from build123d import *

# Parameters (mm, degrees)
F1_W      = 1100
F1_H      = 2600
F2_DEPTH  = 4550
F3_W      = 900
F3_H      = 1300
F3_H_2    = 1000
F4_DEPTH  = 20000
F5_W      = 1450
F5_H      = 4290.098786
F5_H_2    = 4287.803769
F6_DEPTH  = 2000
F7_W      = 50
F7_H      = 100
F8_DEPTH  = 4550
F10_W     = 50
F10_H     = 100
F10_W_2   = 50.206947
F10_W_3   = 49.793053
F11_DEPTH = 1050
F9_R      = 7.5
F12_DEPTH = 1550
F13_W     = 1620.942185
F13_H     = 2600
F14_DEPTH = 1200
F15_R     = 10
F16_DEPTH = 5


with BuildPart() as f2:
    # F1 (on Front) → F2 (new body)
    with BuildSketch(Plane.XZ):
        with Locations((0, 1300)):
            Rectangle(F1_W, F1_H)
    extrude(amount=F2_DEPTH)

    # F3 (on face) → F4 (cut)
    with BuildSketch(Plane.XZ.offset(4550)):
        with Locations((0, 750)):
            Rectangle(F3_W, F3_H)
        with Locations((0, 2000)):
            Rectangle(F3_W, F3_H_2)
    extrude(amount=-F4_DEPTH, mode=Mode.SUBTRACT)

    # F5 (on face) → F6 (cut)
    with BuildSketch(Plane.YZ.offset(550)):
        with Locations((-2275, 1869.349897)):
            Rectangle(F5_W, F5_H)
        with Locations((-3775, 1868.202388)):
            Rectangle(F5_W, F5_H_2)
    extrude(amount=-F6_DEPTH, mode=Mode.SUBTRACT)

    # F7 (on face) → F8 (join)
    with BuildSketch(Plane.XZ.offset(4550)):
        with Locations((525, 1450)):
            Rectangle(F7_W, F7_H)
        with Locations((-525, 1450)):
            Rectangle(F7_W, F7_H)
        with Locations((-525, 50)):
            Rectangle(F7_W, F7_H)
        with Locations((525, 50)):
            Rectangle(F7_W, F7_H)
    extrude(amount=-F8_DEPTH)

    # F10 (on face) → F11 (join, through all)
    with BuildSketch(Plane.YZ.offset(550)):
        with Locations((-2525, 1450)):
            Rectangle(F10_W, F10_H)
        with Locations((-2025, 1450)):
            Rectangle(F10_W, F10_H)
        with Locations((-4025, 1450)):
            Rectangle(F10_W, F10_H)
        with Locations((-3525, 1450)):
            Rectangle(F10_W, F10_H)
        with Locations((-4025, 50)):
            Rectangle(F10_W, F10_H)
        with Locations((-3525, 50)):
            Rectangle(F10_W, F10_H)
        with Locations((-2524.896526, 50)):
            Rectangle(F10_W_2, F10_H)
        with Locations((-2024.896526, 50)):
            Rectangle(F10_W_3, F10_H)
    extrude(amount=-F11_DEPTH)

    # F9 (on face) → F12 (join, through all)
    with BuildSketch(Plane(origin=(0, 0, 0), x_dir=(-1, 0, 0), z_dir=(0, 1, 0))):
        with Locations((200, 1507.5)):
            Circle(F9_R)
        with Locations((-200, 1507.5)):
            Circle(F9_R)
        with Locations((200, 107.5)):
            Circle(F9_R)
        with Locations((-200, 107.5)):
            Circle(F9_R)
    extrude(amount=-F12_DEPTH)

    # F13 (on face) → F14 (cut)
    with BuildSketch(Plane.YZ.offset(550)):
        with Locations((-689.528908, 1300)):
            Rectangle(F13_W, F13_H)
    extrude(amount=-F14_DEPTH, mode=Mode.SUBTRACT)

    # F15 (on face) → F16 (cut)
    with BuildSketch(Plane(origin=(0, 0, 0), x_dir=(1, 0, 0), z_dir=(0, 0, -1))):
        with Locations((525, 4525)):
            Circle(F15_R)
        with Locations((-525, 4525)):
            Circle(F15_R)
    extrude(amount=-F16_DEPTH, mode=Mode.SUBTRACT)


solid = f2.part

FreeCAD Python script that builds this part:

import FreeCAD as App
import Part
import Sketcher

V = App.Vector


def add_polygon(sketch, points):
    """Adds a closed chain of lines whose ends are joined by coincident constraints."""
    first, n = sketch.GeometryCount, len(points)
    for a, b in zip(points, points[1:] + points[:1]):
        sketch.addGeometry(Part.LineSegment(App.Vector(*a, 0), App.Vector(*b, 0)), False)
    for i in range(n):
        sketch.addConstraint(Sketcher.Constraint("Coincident", first + i, 2, first + (i + 1) % n, 1))

doc = App.newDocument("Part")
params = doc.addObject("Spreadsheet::Sheet", "Params")
for row, (alias, value) in enumerate([
    ("sketch1_width", "1100 mm"),
    ("sketch1_height", "2600 mm"),
    ("pad1_length", "4550 mm"),
    ("sketch2_width", "900 mm"),
    ("sketch2_height", "1300 mm"),
    ("sketch2_height2", "1000 mm"),
    ("pocket1_length", "20000 mm"),
    ("sketch3_width", "1450 mm"),
    ("pocket2_length", "2000 mm"),
    ("sketch4_width", "50 mm"),
    ("sketch4_height", "100 mm"),
    ("pad2_length", "4550 mm"),
    ("sketch5_width", "50 mm"),
    ("sketch5_height", "100 mm"),
    ("sketch6_diameter", "15 mm"),
    ("pad4_length", "1550 mm"),
    ("sketch7_height", "2600 mm"),
    ("pocket3_length", "1200 mm"),
    ("sketch8_diameter", "20 mm"),
    ("pocket4_length", "5 mm"),
], start=1):
    params.set(f"A{row}", alias)
    params.set(f"B{row}", "=" + value)
    params.setAlias(f"B{row}", alias)

body = doc.addObject("PartDesign::Body", "Body")
body.AllowCompound = True

# Sketch on XZ plane
sketch1 = body.newObject("Sketcher::SketchObject", "Sketch")
sketch1.AttachmentSupport = (doc.getObject("XZ_Plane"), [""])
sketch1.MapMode = "FlatFace"
add_polygon(sketch1, [(-550, 2600), (-550, 0), (550, 0), (550, 2600)])  # lines 0-3
sketch1.addConstraint([
    Sketcher.Constraint("Vertical", 0),
    Sketcher.Constraint("Horizontal", 1),
    Sketcher.Constraint("Vertical", 2),
    Sketcher.Constraint("Horizontal", 3),
    Sketcher.Constraint("Symmetric", 0, 2, 1, 2, -1, 1),
    Sketcher.Constraint("DistanceX", 1, 1, 1, 2, 1100.0),
    Sketcher.Constraint("DistanceY", 0, 2, 0, 1, 2600.0),
])
sketch1.setExpression("Constraints[9]", "Params.sketch1_width")
sketch1.setExpression("Constraints[10]", "Params.sketch1_height")
pad1 = body.newObject("PartDesign::Pad", "Pad")
pad1.Profile = sketch1
pad1.setExpression("Length", "Params.pad1_length")

# Sketch on XZ plane
sketch2 = body.newObject("Sketcher::SketchObject", "Sketch001")
sketch2.AttachmentSupport = (doc.getObject("XZ_Plane"), [""])
sketch2.MapMode = "FlatFace"
sketch2.AttachmentOffset = App.Placement(V(0, 0, 4550), App.Rotation())
add_polygon(sketch2, [(-450, 1400), (-450, 100), (450, 100), (450, 1400)])  # lines 0-3
add_polygon(sketch2, [(-450, 2500), (-450, 1500), (450, 1500), (450, 2500)])  # lines 4-7
sketch2.addConstraint([
    Sketcher.Constraint("Vertical", 0),
    Sketcher.Constraint("Horizontal", 1),
    Sketcher.Constraint("Vertical", 2),
    Sketcher.Constraint("Horizontal", 3),
    Sketcher.Constraint("Vertical", 4),
    Sketcher.Constraint("Horizontal", 5),
    Sketcher.Constraint("Vertical", 6),
    Sketcher.Constraint("Horizontal", 7),
    Sketcher.Constraint("Vertical", 3, 2, 4, 2),
    Sketcher.Constraint("Vertical", 2, 2, 5, 2),
    Sketcher.Constraint("DistanceX", 1, 1, 1, 2, 900.0),
    Sketcher.Constraint("DistanceY", 0, 2, 0, 1, 1300.0),
    Sketcher.Constraint("DistanceY", 4, 2, 4, 1, 1000.0),
    Sketcher.Constraint("DistanceX", 0, 2, -1, 1, 450.0),
    Sketcher.Constraint("DistanceY", -1, 1, 0, 2, 100.0),
    Sketcher.Constraint("DistanceY", -1, 1, 4, 2, 1500.0),
])
sketch2.setExpression("Constraints[18]", "Params.sketch2_width")
sketch2.setExpression("Constraints[19]", "Params.sketch2_height")
sketch2.setExpression("Constraints[20]", "Params.sketch2_height2")
pocket1 = body.newObject("PartDesign::Pocket", "Pocket")
pocket1.Profile = sketch2
pocket1.setExpression("Length", "Params.pocket1_length")

# Sketch on YZ plane
sketch3 = body.newObject("Sketcher::SketchObject", "Sketch002")
sketch3.AttachmentSupport = (doc.getObject("YZ_Plane"), [""])
sketch3.MapMode = "FlatFace"
sketch3.AttachmentOffset = App.Placement(V(0, 0, 550), App.Rotation())
add_polygon(sketch3, [(-3000, 4014.39929), (-3000, -275.699496), (-1550, -275.699496), (-1550, 4014.39929)])  # lines 0-3
add_polygon(sketch3, [(-4500, 4012.104273), (-4500, -275.699497), (-3050, -275.699497), (-3050, 4012.104273)])  # lines 4-7
sketch3.addConstraint([
    Sketcher.Constraint("Vertical", 0),
    Sketcher.Constraint("Horizontal", 1),
    Sketcher.Constraint("Vertical", 2),
    Sketcher.Constraint("Horizontal", 3),
    Sketcher.Constraint("Vertical", 4),
    Sketcher.Constraint("Horizontal", 5),
    Sketcher.Constraint("Vertical", 6),
    Sketcher.Constraint("Horizontal", 7),
    Sketcher.Constraint("Horizontal", 1, 2, 4, 2),
    Sketcher.Constraint("Equal", 3, 5),
    Sketcher.Constraint("DistanceX", 1, 1, 1, 2, 1450.0),
    Sketcher.Constraint("DistanceX", 0, 2, -1, 1, 3000.0),
    Sketcher.Constraint("DistanceX", 4, 2, -1, 1, 4500.0),
    Sketcher.Constraint("DistanceY", 4, 2, 4, 1, 4287.803769),
    Sketcher.Constraint("DistanceY", 0, 2, 0, 1, 4290.098786),
    Sketcher.Constraint("DistanceY", -1, 1, 2, 2, 4014.39929),
])
sketch3.setExpression("Constraints[18]", "Params.sketch3_width")
pocket2 = body.newObject("PartDesign::Pocket", "Pocket001")
pocket2.Profile = sketch3
pocket2.setExpression("Length", "Params.pocket2_length")

# Sketch on XZ plane
sketch4 = body.newObject("Sketcher::SketchObject", "Sketch003")
sketch4.AttachmentSupport = (doc.getObject("XZ_Plane"), [""])
sketch4.MapMode = "FlatFace"
sketch4.AttachmentOffset = App.Placement(V(0, 0, 4550), App.Rotation())
add_polygon(sketch4, [(500, 1500), (500, 1400), (550, 1400), (550, 1500)])  # lines 0-3
add_polygon(sketch4, [(-550, 1500), (-550, 1400), (-500, 1400), (-500, 1500)])  # lines 4-7
add_polygon(sketch4, [(-550, 100), (-550, 0), (-500, 0), (-500, 100)])  # lines 8-11
add_polygon(sketch4, [(500, 100), (500, 0), (550, 0), (550, 100)])  # lines 12-15
sketch4.addConstraint([
    Sketcher.Constraint("Vertical", 0),
    Sketcher.Constraint("Horizontal", 1),
    Sketcher.Constraint("Vertical", 2),
    Sketcher.Constraint("Horizontal", 3),
    Sketcher.Constraint("Vertical", 4),
    Sketcher.Constraint("Horizontal", 5),
    Sketcher.Constraint("Vertical", 6),
    Sketcher.Constraint("Horizontal", 7),
    Sketcher.Constraint("Vertical", 8),
    Sketcher.Constraint("Horizontal", 9),
    Sketcher.Constraint("Vertical", 10),
    Sketcher.Constraint("Horizontal", 11),
    Sketcher.Constraint("Vertical", 12),
    Sketcher.Constraint("Horizontal", 13),
    Sketcher.Constraint("Vertical", 14),
    Sketcher.Constraint("Horizontal", 15),
    Sketcher.Constraint("Symmetric", 9, 2, 12, 2, -1, 1),
    Sketcher.Constraint("Symmetric", 1, 2, 4, 2, -2),
    Sketcher.Constraint("Symmetric", 3, 2, 6, 2, -2),
    Sketcher.Constraint("Symmetric", 8, 2, 13, 2, -2),
    Sketcher.Constraint("Horizontal", 11, 2, 14, 2),
    Sketcher.Constraint("Vertical", 7, 2, 8, 2),
    Sketcher.Constraint("Vertical", 6, 2, 9, 2),
    Sketcher.Constraint("Equal", 6, 8),
    Sketcher.Constraint("DistanceX", 1, 1, 1, 2, 50.0),
    Sketcher.Constraint("DistanceY", 0, 2, 0, 1, 100.0),
    Sketcher.Constraint("DistanceX", -1, 1, 0, 2, 500.0),
    Sketcher.Constraint("DistanceY", -1, 1, 0, 2, 1400.0),
])
sketch4.setExpression("Constraints[40]", "Params.sketch4_width")
sketch4.setExpression("Constraints[41]", "Params.sketch4_height")
pad2 = body.newObject("PartDesign::Pad", "Pad001")
pad2.Profile = sketch4
pad2.setExpression("Length", "Params.pad2_length")
pad2.Reversed = True

# Sketch on YZ plane
sketch5 = body.newObject("Sketcher::SketchObject", "Sketch004")
sketch5.AttachmentSupport = (doc.getObject("YZ_Plane"), [""])
sketch5.MapMode = "FlatFace"
sketch5.AttachmentOffset = App.Placement(V(0, 0, 550), App.Rotation())
add_polygon(sketch5, [(-2550, 1500), (-2550, 1400), (-2500, 1400), (-2500, 1500)])  # lines 0-3
add_polygon(sketch5, [(-2050, 1500), (-2050, 1400), (-2000, 1400), (-2000, 1500)])  # lines 4-7
add_polygon(sketch5, [(-4050, 1500), (-4050, 1400), (-4000, 1400), (-4000, 1500)])  # lines 8-11
add_polygon(sketch5, [(-3550, 1500), (-3550, 1400), (-3500, 1400), (-3500, 1500)])  # lines 12-15
add_polygon(sketch5, [(-4050, 100), (-4050, 0), (-4000, 0), (-4000, 100)])  # lines 16-19
add_polygon(sketch5, [(-3550, 100), (-3550, 0), (-3500, 0), (-3500, 100)])  # lines 20-23
add_polygon(sketch5, [(-2549.999999, 100), (-2549.999999, 0), (-2499.793053, 0), (-2499.793053, 100)])  # lines 24-27
add_polygon(sketch5, [(-2049.793053, 100), (-2049.793053, 0), (-2000, 0), (-2000, 100)])  # lines 28-31
sketch5.addConstraint([
    Sketcher.Constraint("Vertical", 0),
    Sketcher.Constraint("Horizontal", 1),
    Sketcher.Constraint("Vertical", 2),
    Sketcher.Constraint("Horizontal", 3),
    Sketcher.Constraint("Vertical", 4),
    Sketcher.Constraint("Horizontal", 5),
    Sketcher.Constraint("Vertical", 6),
    Sketcher.Constraint("Horizontal", 7),
    Sketcher.Constraint("Vertical", 8),
    Sketcher.Constraint("Horizontal", 9),
    Sketcher.Constraint("Vertical", 10),
    Sketcher.Constraint("Horizontal", 11),
    Sketcher.Constraint("Vertical", 12),
    Sketcher.Constraint("Horizontal", 13),
    Sketcher.Constraint("Vertical", 14),
    Sketcher.Constraint("Horizontal", 15),
    Sketcher.Constraint("Vertical", 16),
    Sketcher.Constraint("Horizontal", 17),
    Sketcher.Constraint("Vertical", 18),
    Sketcher.Constraint("Horizontal", 19),
    Sketcher.Constraint("Vertical", 20),
    Sketcher.Constraint("Horizontal", 21),
    Sketcher.Constraint("Vertical", 22),
    Sketcher.Constraint("Horizontal", 23),
    Sketcher.Constraint("Vertical", 24),
    Sketcher.Constraint("Horizontal", 25),
    Sketcher.Constraint("Vertical", 26),
    Sketcher.Constraint("Horizontal", 27),
    Sketcher.Constraint("Vertical", 28),
    Sketcher.Constraint("Horizontal", 29),
    Sketcher.Constraint("Vertical", 30),
    Sketcher.Constraint("Horizontal", 31),
    Sketcher.Constraint("PointOnObject", 16, 2, -1),
    Sketcher.Constraint("PointOnObject", 20, 2, -1),
    Sketcher.Constraint("PointOnObject", 24, 2, -1),
    Sketcher.Constraint("PointOnObject", 28, 2, -1),
    Sketcher.Constraint("Horizontal", 1, 2, 4, 2),
    Sketcher.Constraint("Horizontal", 3, 2, 6, 2),
    Sketcher.Constraint("Horizontal", 5, 2, 8, 2),
    Sketcher.Constraint("Horizontal", 7, 2, 10, 2),
    Sketcher.Constraint("Horizontal", 9, 2, 12, 2),
    Sketcher.Constraint("Horizontal", 11, 2, 14, 2),
    Sketcher.Constraint("Horizontal", 19, 2, 22, 2),
    Sketcher.Constraint("Horizontal", 23, 2, 26, 2),
    Sketcher.Constraint("Horizontal", 27, 2, 30, 2),
    Sketcher.Constraint("Vertical", 11, 2, 16, 2),
    Sketcher.Constraint("Vertical", 10, 2, 17, 2),
    Sketcher.Constraint("Vertical", 15, 2, 20, 2),
    Sketcher.Constraint("Vertical", 14, 2, 21, 2),
    Sketcher.Constraint("Vertical", 3, 2, 24, 2),
    Sketcher.Constraint("Vertical", 6, 2, 29, 2),
    Sketcher.Constraint("Equal", 3, 5),
    Sketcher.Constraint("Equal", 7, 9),
    Sketcher.Constraint("Equal", 11, 13),
    Sketcher.Constraint("Equal", 14, 16),
    Sketcher.Constraint("DistanceX", 1, 1, 1, 2, 50.0),
    Sketcher.Constraint("DistanceY", 0, 2, 0, 1, 100.0),
    Sketcher.Constraint("DistanceX", 0, 2, -1, 1, 2550.0),
    Sketcher.Constraint("DistanceY", -1, 1, 0, 2, 1400.0),
    Sketcher.Constraint("DistanceX", 4, 2, -1, 1, 2050.0),
    Sketcher.Constraint("DistanceX", 8, 2, -1, 1, 4050.0),
    Sketcher.Constraint("DistanceX", 12, 2, -1, 1, 3550.0),
    Sketcher.Constraint("DistanceX", 25, 2, 28, 2, 450.0),
    Sketcher.Constraint("DistanceX", 25, 1, 25, 2, 50.206947),
])
sketch5.setExpression("Constraints[87]", "Params.sketch5_width")
sketch5.setExpression("Constraints[88]", "Params.sketch5_height")
pad3 = body.newObject("PartDesign::Pad", "Pad002")
pad3.Profile = sketch5
pad3.Type = "UpToLast"
pad3.Reversed = True

# Sketch on XZ plane
sketch6 = body.newObject("Sketcher::SketchObject", "Sketch005")
sketch6.AttachmentSupport = (doc.getObject("XZ_Plane"), [""])
sketch6.MapMode = "FlatFace"
sketch6.addGeometry([
    Part.Circle(V(-200, 1507.5, 0), V(0, 0, 1), 7.5),
    Part.Circle(V(200, 1507.5, 0), V(0, 0, 1), 7.5),
    Part.Circle(V(-200, 107.5, 0), V(0, 0, 1), 7.5),
    Part.Circle(V(200, 107.5, 0), V(0, 0, 1), 7.5),
], False)
sketch6.addConstraint([
    Sketcher.Constraint("Equal", 0, 1),
    Sketcher.Constraint("Equal", 1, 2),
    Sketcher.Constraint("Equal", 2, 3),
    Sketcher.Constraint("Symmetric", 0, 3, 1, 3, -2),
    Sketcher.Constraint("Symmetric", 2, 3, 3, 3, -2),
    Sketcher.Constraint("Vertical", 0, 3, 2, 3),
    Sketcher.Constraint("Diameter", 0, 15.0),
    Sketcher.Constraint("DistanceX", 0, 3, -1, 1, 200.0),
    Sketcher.Constraint("DistanceY", 2, 3, 0, 3, 1400.0),
    Sketcher.Constraint("DistanceY", -1, 1, 0, 3, 1507.5),
])
sketch6.setExpression("Constraints[6]", "Params.sketch6_diameter")
pad4 = body.newObject("PartDesign::Pad", "Pad003")
pad4.Profile = sketch6
pad4.setExpression("Length", "Params.pad4_length")

# Sketch on YZ plane
sketch7 = body.newObject("Sketcher::SketchObject", "Sketch006")
sketch7.AttachmentSupport = (doc.getObject("YZ_Plane"), [""])
sketch7.MapMode = "FlatFace"
sketch7.AttachmentOffset = App.Placement(V(0, 0, 550), App.Rotation())
add_polygon(sketch7, [(-1500, 2600), (-1500, 0), (120.942184, 0), (120.942184, 2600)])  # lines 0-3
sketch7.addConstraint([
    Sketcher.Constraint("Vertical", 0),
    Sketcher.Constraint("Horizontal", 1),
    Sketcher.Constraint("Vertical", 2),
    Sketcher.Constraint("Horizontal", 3),
    Sketcher.Constraint("PointOnObject", 0, 2, -1),
    Sketcher.Constraint("DistanceY", 0, 2, 0, 1, 2600.0),
    Sketcher.Constraint("DistanceX", 0, 2, -1, 1, 1500.0),
    Sketcher.Constraint("DistanceX", 1, 1, 1, 2, 1620.942185),
])
sketch7.setExpression("Constraints[9]", "Params.sketch7_height")
pocket3 = body.newObject("PartDesign::Pocket", "Pocket002")
pocket3.Profile = sketch7
pocket3.setExpression("Length", "Params.pocket3_length")

# Sketch on XY plane
sketch8 = body.newObject("Sketcher::SketchObject", "Sketch007")
sketch8.AttachmentSupport = (doc.getObject("XY_Plane"), [""])
sketch8.MapMode = "FlatFace"
sketch8.addGeometry([
    Part.Circle(V(525, -4525, 0), V(0, 0, 1), 10),
    Part.Circle(V(-525, -4525, 0), V(0, 0, 1), 10),
], False)
sketch8.addConstraint([
    Sketcher.Constraint("Equal", 0, 1),
    Sketcher.Constraint("Symmetric", 0, 3, 1, 3, -2),
    Sketcher.Constraint("Diameter", 0, 20.0),
    Sketcher.Constraint("DistanceX", -1, 1, 0, 3, 525.0),
    Sketcher.Constraint("DistanceY", 0, 3, -1, 1, 4525.0),
])
sketch8.setExpression("Constraints[2]", "Params.sketch8_diameter")
pocket4 = body.newObject("PartDesign::Pocket", "Pocket003")
pocket4.Profile = sketch8
pocket4.setExpression("Length", "Params.pocket4_length")
pocket4.Reversed = True

doc.recompute()
